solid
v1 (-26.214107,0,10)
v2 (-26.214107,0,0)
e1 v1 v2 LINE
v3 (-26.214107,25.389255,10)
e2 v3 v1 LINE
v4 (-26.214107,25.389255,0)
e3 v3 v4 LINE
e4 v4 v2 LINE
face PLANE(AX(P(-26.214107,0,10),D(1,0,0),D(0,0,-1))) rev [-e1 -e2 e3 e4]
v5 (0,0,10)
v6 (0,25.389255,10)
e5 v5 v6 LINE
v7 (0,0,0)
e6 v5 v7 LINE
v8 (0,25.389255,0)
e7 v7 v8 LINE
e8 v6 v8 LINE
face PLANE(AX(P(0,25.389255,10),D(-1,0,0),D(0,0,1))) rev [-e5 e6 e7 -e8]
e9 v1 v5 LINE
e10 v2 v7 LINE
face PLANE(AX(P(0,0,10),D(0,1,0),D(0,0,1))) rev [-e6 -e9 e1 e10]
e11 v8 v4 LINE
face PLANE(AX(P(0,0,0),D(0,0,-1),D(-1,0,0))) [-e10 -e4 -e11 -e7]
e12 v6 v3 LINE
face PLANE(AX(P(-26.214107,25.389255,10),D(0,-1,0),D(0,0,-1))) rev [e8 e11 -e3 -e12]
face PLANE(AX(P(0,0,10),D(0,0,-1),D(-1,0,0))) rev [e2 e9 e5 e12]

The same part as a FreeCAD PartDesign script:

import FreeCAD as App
import Part
import Sketcher

V = App.Vector


def add_polygon(sketch, points):
    """Adds a closed chain of lines whose ends are joined by coincident constraints."""
    first, n = sketch.GeometryCount, len(points)
    for a, b in zip(points, points[1:] + points[:1]):
        sketch.addGeometry(Part.LineSegment(App.Vector(*a, 0), App.Vector(*b, 0)), False)
    for i in range(n):
        sketch.addConstraint(Sketcher.Constraint("Coincident", first + i, 2, first + (i + 1) % n, 1))

doc = App.newDocument("Part")
body = doc.addObject("PartDesign::Body", "Body")

# Sketch on XY plane
sketch1 = body.newObject("Sketcher::SketchObject", "Sketch")
sketch1.AttachmentSupport = (doc.getObject("XY_Plane"), [""])
sketch1.MapMode = "FlatFace"
add_polygon(sketch1, [(-26.214107, 25.389256), (-26.214107, 0), (0, 0), (0, 25.389256)])  # lines 0-3
sketch1.addConstraint(Sketcher.Constraint("Vertical", 0))
sketch1.addConstraint(Sketcher.Constraint("Horizontal", 1))
sketch1.addConstraint(Sketcher.Constraint("Vertical", 2))
sketch1.addConstraint(Sketcher.Constraint("Horizontal", 3))
sketch1.addConstraint(Sketcher.Constraint("Coincident", 1, 2, -1, 1))
sketch1.addConstraint(Sketcher.Constraint("DistanceX", 1, 1, 1, 2, 26.214107))
sketch1.addConstraint(Sketcher.Constraint("DistanceY", 0, 2, 0, 1, 25.389255))
pad1 = body.newObject("PartDesign::Pad", "Pad")
pad1.Profile = sketch1
pad1.Length = 10

doc.recompute()
